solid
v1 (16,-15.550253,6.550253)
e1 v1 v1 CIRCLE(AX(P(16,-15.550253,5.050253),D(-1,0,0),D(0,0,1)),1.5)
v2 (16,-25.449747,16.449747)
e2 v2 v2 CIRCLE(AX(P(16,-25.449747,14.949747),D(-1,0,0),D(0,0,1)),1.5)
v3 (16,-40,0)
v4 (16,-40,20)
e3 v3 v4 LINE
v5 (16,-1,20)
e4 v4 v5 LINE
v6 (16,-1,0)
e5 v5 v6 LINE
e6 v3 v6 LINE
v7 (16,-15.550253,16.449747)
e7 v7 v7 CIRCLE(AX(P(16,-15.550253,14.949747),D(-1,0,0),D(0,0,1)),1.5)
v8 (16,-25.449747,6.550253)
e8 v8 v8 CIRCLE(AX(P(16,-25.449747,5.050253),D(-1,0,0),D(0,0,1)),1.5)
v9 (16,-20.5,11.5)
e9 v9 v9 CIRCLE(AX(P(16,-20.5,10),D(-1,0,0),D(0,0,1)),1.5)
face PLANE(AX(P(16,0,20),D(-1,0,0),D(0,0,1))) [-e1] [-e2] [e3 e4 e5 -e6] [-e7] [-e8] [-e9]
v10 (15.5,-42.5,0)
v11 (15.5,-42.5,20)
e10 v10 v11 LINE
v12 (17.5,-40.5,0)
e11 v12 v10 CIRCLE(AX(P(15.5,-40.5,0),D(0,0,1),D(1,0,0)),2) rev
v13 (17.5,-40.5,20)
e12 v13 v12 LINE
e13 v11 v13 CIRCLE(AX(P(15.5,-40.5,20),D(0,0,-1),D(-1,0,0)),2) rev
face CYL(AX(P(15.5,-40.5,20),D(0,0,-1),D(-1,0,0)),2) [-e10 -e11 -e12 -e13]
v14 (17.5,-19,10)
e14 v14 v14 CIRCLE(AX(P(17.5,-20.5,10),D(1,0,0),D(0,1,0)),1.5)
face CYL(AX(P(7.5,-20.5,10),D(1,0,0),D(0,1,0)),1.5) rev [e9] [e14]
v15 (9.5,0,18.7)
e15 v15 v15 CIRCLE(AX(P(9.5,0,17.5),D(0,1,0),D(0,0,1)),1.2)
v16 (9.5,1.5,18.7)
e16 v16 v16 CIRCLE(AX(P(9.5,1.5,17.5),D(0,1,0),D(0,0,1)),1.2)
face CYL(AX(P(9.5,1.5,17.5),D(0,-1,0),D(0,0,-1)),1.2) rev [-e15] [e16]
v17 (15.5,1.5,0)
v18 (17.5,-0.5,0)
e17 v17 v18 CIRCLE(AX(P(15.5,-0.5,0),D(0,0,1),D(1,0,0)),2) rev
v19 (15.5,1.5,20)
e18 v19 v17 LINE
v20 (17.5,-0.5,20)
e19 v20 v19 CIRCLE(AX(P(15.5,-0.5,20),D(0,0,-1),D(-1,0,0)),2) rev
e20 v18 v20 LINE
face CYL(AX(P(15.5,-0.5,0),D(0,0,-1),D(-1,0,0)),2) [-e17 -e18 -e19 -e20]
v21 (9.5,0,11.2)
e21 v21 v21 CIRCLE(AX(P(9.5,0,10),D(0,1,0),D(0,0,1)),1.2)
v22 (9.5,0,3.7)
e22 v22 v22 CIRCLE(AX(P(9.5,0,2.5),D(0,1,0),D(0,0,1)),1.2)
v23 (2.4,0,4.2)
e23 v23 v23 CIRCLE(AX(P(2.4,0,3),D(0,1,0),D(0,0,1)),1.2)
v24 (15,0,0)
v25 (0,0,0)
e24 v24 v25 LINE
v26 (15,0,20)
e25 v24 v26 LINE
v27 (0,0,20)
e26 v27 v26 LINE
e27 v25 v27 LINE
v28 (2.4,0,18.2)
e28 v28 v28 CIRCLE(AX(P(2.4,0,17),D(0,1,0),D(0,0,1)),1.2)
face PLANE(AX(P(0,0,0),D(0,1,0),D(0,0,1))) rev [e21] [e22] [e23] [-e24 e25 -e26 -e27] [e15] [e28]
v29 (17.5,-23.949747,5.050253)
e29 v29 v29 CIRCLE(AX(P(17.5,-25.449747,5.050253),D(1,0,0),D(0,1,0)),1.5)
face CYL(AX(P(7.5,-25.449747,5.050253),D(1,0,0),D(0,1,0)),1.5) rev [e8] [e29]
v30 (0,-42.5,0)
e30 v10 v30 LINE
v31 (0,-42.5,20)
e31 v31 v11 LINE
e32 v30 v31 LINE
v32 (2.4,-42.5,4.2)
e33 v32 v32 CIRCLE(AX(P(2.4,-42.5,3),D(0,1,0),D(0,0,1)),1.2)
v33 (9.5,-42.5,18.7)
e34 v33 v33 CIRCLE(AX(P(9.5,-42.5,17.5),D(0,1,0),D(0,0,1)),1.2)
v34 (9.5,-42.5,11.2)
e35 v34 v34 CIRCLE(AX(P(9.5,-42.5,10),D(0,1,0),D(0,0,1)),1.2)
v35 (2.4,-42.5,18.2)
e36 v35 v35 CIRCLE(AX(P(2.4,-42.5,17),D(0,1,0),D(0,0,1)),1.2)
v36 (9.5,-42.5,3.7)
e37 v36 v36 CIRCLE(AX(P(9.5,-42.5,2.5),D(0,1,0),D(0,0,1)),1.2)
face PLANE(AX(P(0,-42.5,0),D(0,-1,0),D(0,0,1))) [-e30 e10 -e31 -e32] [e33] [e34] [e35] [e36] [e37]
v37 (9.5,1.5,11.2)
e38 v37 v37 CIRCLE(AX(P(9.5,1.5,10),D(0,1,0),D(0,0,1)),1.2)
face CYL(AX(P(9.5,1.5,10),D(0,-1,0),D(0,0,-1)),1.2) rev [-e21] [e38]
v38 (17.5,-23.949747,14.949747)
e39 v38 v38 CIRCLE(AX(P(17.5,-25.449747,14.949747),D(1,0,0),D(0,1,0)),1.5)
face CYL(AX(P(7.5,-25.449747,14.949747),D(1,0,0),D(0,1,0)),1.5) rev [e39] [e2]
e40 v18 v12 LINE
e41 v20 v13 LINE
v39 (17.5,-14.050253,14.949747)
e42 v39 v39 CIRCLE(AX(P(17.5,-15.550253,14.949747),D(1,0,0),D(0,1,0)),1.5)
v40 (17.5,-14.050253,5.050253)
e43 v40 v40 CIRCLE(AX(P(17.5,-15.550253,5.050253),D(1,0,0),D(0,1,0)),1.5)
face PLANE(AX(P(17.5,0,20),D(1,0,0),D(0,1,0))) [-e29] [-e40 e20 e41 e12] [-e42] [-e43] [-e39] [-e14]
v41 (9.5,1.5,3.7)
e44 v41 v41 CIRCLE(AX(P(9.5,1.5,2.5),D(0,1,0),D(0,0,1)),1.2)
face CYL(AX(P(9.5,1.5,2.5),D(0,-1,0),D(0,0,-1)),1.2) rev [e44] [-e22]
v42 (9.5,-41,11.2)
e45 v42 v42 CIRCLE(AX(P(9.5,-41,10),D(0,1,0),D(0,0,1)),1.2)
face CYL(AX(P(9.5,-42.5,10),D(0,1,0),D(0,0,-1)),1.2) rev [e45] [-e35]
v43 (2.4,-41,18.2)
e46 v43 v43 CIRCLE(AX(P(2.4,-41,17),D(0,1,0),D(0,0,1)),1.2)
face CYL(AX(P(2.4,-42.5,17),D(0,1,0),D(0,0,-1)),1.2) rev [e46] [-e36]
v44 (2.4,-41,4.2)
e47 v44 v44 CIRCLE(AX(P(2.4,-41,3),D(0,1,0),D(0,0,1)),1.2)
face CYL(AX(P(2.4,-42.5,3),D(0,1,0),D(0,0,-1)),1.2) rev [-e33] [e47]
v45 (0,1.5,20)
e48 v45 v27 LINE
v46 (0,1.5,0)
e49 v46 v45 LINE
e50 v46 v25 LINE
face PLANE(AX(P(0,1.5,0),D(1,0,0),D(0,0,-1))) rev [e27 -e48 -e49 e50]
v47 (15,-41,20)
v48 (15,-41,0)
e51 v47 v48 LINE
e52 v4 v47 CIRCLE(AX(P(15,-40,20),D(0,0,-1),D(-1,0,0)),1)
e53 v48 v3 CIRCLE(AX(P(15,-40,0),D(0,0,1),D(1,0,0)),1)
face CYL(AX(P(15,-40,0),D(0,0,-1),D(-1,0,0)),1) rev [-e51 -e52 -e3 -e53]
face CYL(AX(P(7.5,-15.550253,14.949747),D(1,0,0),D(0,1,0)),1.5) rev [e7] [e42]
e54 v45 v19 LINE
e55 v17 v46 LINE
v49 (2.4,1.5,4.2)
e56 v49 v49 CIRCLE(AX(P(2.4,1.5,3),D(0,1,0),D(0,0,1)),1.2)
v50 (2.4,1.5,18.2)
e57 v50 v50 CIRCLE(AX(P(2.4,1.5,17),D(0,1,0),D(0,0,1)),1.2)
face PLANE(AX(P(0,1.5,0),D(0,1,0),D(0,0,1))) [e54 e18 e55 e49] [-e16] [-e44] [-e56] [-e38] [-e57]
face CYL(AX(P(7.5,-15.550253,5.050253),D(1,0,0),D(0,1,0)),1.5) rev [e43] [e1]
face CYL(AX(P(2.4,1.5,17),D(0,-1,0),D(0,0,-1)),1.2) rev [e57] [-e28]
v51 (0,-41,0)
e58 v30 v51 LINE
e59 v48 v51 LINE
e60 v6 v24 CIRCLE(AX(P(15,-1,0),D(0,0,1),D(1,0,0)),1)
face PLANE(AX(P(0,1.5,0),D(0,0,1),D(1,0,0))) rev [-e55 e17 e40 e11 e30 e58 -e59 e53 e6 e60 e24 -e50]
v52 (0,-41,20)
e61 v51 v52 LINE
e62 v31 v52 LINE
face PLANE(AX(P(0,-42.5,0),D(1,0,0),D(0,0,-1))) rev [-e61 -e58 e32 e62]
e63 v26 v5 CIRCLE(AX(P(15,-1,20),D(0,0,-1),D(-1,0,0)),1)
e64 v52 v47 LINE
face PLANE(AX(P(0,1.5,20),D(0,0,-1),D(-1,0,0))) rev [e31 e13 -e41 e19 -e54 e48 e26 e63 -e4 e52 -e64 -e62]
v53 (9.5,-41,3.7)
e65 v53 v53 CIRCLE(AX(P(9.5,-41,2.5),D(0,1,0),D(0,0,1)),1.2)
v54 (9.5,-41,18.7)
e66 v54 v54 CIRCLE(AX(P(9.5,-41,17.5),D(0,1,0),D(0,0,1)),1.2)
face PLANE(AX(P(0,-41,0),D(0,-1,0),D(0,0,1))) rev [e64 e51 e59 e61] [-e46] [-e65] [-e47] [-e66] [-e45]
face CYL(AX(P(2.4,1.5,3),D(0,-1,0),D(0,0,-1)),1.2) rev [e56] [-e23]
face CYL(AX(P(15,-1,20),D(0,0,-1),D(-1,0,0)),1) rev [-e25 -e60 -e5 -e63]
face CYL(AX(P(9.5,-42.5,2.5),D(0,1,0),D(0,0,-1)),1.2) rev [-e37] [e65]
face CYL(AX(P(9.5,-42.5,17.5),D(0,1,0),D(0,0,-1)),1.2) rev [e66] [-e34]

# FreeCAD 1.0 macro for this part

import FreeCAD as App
import Part
import Sketcher
from FreeCAD import Vector
Q = App.Units.Quantity


def edges_at(feature, points):
    """Names of the edges that pass closest to the given points."""
    edges = feature.Shape.Edges
    near = lambda p: min(range(len(edges)), key=lambda i: edges[i].distToShape(Part.Vertex(*p))[0])
    return sorted({f"Edge{near(p) + 1}" for p in points})


def add_polygon(sketch, points):
    """Adds a closed chain of lines whose ends are joined by coincident constraints."""
    first, n = sketch.GeometryCount, len(points)
    for a, b in zip(points, points[1:] + points[:1]):
        sketch.addGeometry(Part.LineSegment(App.Vector(*a, 0), App.Vector(*b, 0)), False)
    for i in range(n):
        sketch.addConstraint(Sketcher.Constraint("Coincident", first + i, 2, first + (i + 1) % n, 1))

doc = App.newDocument("Part")
body = doc.addObject("PartDesign::Body", "Body")

sketch1 = body.newObject("Sketcher::SketchObject", "Sketch")
sketch1.AttachmentSupport = (doc.getObject("XZ_Plane"), [""])
sketch1.MapMode = "FlatFace"
add_polygon(sketch1, [(0, 0), (0, 20), (12, 20), (12, 0)])
sketch1.addGeometry(Part.Circle(Vector(2.4, 17, 0), Vector(0, 0, 1), 1.2), False)
sketch1.addGeometry(Part.Circle(Vector(9.5, 17.5, 0), Vector(0, 0, 1), 1.2), False)
sketch1.addGeometry(Part.Circle(Vector(2.4, 3, 0), Vector(0, 0, 1), 1.2), False)
sketch1.addGeometry(Part.Circle(Vector(9.5, 10, 0), Vector(0, 0, 1), 1.2), False)
sketch1.addGeometry(Part.Circle(Vector(9.5, 2.5, 0), Vector(0, 0, 1), 1.2), False)
sketch1.addConstraint([
    Sketcher.Constraint("Vertical", 0),
    Sketcher.Constraint("Horizontal", 1),
    Sketcher.Constraint("Vertical", 2),
    Sketcher.Constraint("Horizontal", 3),
    Sketcher.Constraint("Coincident", 3, 2, -1, 1),
    Sketcher.Constraint("Equal", 4, 5),
    Sketcher.Constraint("Equal", 5, 6),
    Sketcher.Constraint("Equal", 6, 7),
    Sketcher.Constraint("Equal", 7, 8),
    Sketcher.Constraint("Vertical", 4, 3, 6, 3),
    Sketcher.Constraint("Vertical", 5, 3, 7, 3),
    Sketcher.Constraint("Vertical", 7, 3, 8, 3),
    Sketcher.Constraint("Diameter", 4, Q("2.4 mm")),
    Sketcher.Constraint("DistanceX", 1, 1, 1, 2, Q("12 mm")),
    Sketcher.Constraint("DistanceY", 0, 1, 0, 2, Q("20 mm")),
    Sketcher.Constraint("DistanceY", -1, 1, 4, 3, Q("17 mm")),
    Sketcher.Constraint("DistanceY", -1, 1, 6, 3, Q("3 mm")),
    Sketcher.Constraint("DistanceY", -1, 1, 7, 3, Q("10 mm")),
    Sketcher.Constraint("DistanceY", 8, 3, 5, 3, Q("15 mm")),
    Sketcher.Constraint("DistanceX", -1, 1, 4, 3, Q("2.4 mm")),
    Sketcher.Constraint("DistanceX", -1, 1, 5, 3, Q("9.5 mm")),
    Sketcher.Constraint("DistanceY", -1, 1, 5, 3, Q("17.5 mm")),
])
pad1 = body.newObject("PartDesign::Pad", "Pad")
pad1.Profile = sketch1
pad1.Length = 1.5
pad1.Reversed = True

sketch2 = body.newObject("Sketcher::SketchObject", "Sketch001")
sketch2.AttachmentSupport = (doc.getObject("XY_Plane"), [""])
sketch2.MapMode = "FlatFace"
add_polygon(sketch2, [(16, -20.5), (16, 0), (12, 0), (12, 1.5), (17.5, 1.5), (17.5, -20.5)])
sketch2.addConstraint([
    Sketcher.Constraint("Vertical", 0),
    Sketcher.Constraint("Horizontal", 1),
    Sketcher.Constraint("Vertical", 2),
    Sketcher.Constraint("Horizontal", 3),
    Sketcher.Constraint("Vertical", 4),
    Sketcher.Constraint("Horizontal", 5),
    Sketcher.Constraint("PointOnObject", 0, 2, -1),
    Sketcher.Constraint("Equal", 5, 2),
    Sketcher.Constraint("DistanceX", 1, 2, 1, 1, Q("4 mm")),
    Sketcher.Constraint("DistanceY", 4, 2, 4, 1, Q("22 mm")),
    Sketcher.Constraint("DistanceX", 3, 1, 3, 2, Q("5.5 mm")),
    Sketcher.Constraint("DistanceX", -1, 1, 0, 2, Q("16 mm")),
])
pad2 = body.newObject("PartDesign::Pad", "Pad001")
pad2.Profile = sketch2
pad2.Length = 20
body2 = doc.addObject("PartDesign::Body", "Body001")
doc.recompute()

body2.BaseFeature = body
doc.recompute()

mirroring = doc.addObject("Part::Mirroring", "Mirroring")
mirroring.Source = body
mirroring.Base = Vector(0, -20.5, 20)
mirroring.Normal = Vector(0, -1, 0)
body3 = doc.addObject("PartDesign::Body", "Body002")
body3.BaseFeature = mirroring
boolean = body2.newObject("PartDesign::Boolean", "Boolean")
boolean.Type = "Fuse"
boolean.addObjects([body3])
doc.recompute()

sketch3 = body2.newObject("Sketcher::SketchObject", "Sketch002")
sketch3.AttachmentSupport = (doc.getObject("YZ_Plane001"), [""])
sketch3.MapMode = "FlatFace"
sketch3.AttachmentOffset = App.Placement(Vector(0, 0, 17.5), App.Rotation())
sketch3.addGeometry([
    Part.Circle(Vector(-20.5, 10, 0), Vector(0, 0, 1), 1.5),
    Part.Circle(Vector(-15.6, 14.9, 0), Vector(0, 0, 1), 1.5),
    Part.Circle(Vector(-15.6, 5.1, 0), Vector(0, 0, 1), 1.5),
    Part.Circle(Vector(-25.4, 5.1, 0), Vector(0, 0, 1), 1.5),
    Part.Circle(Vector(-25.4, 14.9, 0), Vector(0, 0, 1), 1.5),
], False)
sketch3.addConstraint([
    Sketcher.Constraint("Equal", 0, 1),
    Sketcher.Constraint("Equal", 1, 2),
    Sketcher.Constraint("Equal", 2, 3),
    Sketcher.Constraint("Equal", 3, 4),
    Sketcher.Constraint("Horizontal", 2, 3, 3, 3),
    Sketcher.Constraint("Horizontal", 1, 3, 4, 3),
    Sketcher.Constraint("Vertical", 1, 3, 2, 3),
    Sketcher.Constraint("Vertical", 3, 3, 4, 3),
    Sketcher.Constraint("Diameter", 0, Q("3 mm")),
    Sketcher.Constraint("DistanceY", -1, 1, 0, 3, Q("10 mm")),
    Sketcher.Constraint("DistanceX", 0, 3, -1, 1, Q("20.5 mm")),
    Sketcher.Constraint("DistanceX", 1, 3, -1, 1, Q("15.550253 mm")),
    Sketcher.Constraint("DistanceY", -1, 1, 1, 3, Q("14.949747 mm")),
    Sketcher.Constraint("DistanceY", -1, 1, 2, 3, Q("5.050253 mm")),
    Sketcher.Constraint("DistanceX", 3, 3, -1, 1, Q("25.449747 mm")),
])
pocket1 = body2.newObject("PartDesign::Pocket", "Pocket")
pocket1.Profile = sketch3
pocket1.Length = 10
doc.recompute()

fillet = body2.newObject("PartDesign::Fillet", "Fillet")
fillet.Base = (pocket1, edges_at(pocket1, [(17.5, 1.5, 10), (17.5, -42.5, 10)]))
fillet.Radius = 2
doc.recompute()

fillet2 = body2.newObject("PartDesign::Fillet", "Fillet001")
fillet2.Base = (fillet, edges_at(fillet, [(16, 0, 10), (16, -41, 10)]))
fillet2.Radius = 1
mirroring.Visibility = False

doc.recompute()
